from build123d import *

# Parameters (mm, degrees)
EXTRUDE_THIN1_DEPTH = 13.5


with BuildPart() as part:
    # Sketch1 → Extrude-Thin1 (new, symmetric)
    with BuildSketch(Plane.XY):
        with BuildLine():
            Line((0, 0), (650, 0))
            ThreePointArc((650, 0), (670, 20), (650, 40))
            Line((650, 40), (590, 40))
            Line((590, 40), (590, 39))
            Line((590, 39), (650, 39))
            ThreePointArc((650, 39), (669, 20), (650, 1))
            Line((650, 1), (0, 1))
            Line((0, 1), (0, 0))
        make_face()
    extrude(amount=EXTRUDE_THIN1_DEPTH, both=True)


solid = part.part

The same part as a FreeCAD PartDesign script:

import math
import FreeCAD as App
import Part
import Sketcher
Q = App.Units.Quantity

doc = App.newDocument("Part")
body = doc.addObject("PartDesign::Body", "Body")

# Sketch on XY plane
sketch1 = body.newObject("Sketcher::SketchObject", "Sketch")
sketch1.AttachmentSupport = (doc.getObject("XY_Plane"), [""])
sketch1.MapMode = "FlatFace"
sketch1.addGeometry(Part.LineSegment(App.Vector(0, 0, 0), App.Vector(650, 0, 0)), False)
sketch1.addGeometry(Part.ArcOfCircle(Part.Circle(App.Vector(650, 20, 0), App.Vector(0, 0, 1), 20), math.radians(-90), math.radians(90)), False)
sketch1.addGeometry(Part.LineSegment(App.Vector(650, 40, 0), App.Vector(590, 40, 0)), False)
sketch1.addGeometry(Part.LineSegment(App.Vector(590, 40, 0), App.Vector(590, 39, 0)), False)
sketch1.addGeometry(Part.LineSegment(App.Vector(590, 39, 0), App.Vector(650, 39, 0)), False)
sketch1.addGeometry(Part.ArcOfCircle(Part.Circle(App.Vector(650, 20, 0), App.Vector(0, 0, 1), 19), math.radians(-90), math.radians(90)), False)
sketch1.addGeometry(Part.LineSegment(App.Vector(650, 1, 0), App.Vector(0, 1, 0)), False)
sketch1.addGeometry(Part.LineSegment(App.Vector(0, 1, 0), App.Vector(0, 0, 0)), False)
sketch1.addConstraint(Sketcher.Constraint("Tangent", 0, 2, 1, 1))
sketch1.addConstraint(Sketcher.Constraint("Tangent", 1, 2, 2, 1))
sketch1.addConstraint(Sketcher.Constraint("Coincident", 2, 2, 3, 1))
sketch1.addConstraint(Sketcher.Constraint("Coincident", 3, 2, 4, 1))
sketch1.addConstraint(Sketcher.Constraint("Tangent", 4, 2, 5, 2))
sketch1.addConstraint(Sketcher.Constraint("Tangent", 5, 1, 6, 1))
sketch1.addConstraint(Sketcher.Constraint("Coincident", 6, 2, 7, 1))
sketch1.addConstraint(Sketcher.Constraint("Coincident", 7, 2, 0, 1))
sketch1.addConstraint(Sketcher.Constraint("Horizontal", 0))
sketch1.addConstraint(Sketcher.Constraint("Horizontal", 2))
sketch1.addConstraint(Sketcher.Constraint("Vertical", 3))
sketch1.addConstraint(Sketcher.Constraint("Horizontal", 4))
sketch1.addConstraint(Sketcher.Constraint("Horizontal", 6))
sketch1.addConstraint(Sketcher.Constraint("Vertical", 7))
sketch1.addConstraint(Sketcher.Constraint("Coincident", 7, 2, -1, 1))
sketch1.addConstraint(Sketcher.Constraint("Coincident", 5, 3, 1, 3))
sketch1.addConstraint(Sketcher.Constraint("Radius", 1, Q("20 mm")))
sketch1.addConstraint(Sketcher.Constraint("Radius", 5, Q("19 mm")))
sketch1.addConstraint(Sketcher.Constraint("DistanceX", 0, 1, 0, 2, Q("650 mm")))
sketch1.addConstraint(Sketcher.Constraint("DistanceX", 2, 2, 2, 1, Q("60 mm")))
pad1 = body.newObject("PartDesign::Pad", "Pad")
pad1.Profile = sketch1
pad1.Length = 27
pad1.Midplane = True

doc.recompute()
